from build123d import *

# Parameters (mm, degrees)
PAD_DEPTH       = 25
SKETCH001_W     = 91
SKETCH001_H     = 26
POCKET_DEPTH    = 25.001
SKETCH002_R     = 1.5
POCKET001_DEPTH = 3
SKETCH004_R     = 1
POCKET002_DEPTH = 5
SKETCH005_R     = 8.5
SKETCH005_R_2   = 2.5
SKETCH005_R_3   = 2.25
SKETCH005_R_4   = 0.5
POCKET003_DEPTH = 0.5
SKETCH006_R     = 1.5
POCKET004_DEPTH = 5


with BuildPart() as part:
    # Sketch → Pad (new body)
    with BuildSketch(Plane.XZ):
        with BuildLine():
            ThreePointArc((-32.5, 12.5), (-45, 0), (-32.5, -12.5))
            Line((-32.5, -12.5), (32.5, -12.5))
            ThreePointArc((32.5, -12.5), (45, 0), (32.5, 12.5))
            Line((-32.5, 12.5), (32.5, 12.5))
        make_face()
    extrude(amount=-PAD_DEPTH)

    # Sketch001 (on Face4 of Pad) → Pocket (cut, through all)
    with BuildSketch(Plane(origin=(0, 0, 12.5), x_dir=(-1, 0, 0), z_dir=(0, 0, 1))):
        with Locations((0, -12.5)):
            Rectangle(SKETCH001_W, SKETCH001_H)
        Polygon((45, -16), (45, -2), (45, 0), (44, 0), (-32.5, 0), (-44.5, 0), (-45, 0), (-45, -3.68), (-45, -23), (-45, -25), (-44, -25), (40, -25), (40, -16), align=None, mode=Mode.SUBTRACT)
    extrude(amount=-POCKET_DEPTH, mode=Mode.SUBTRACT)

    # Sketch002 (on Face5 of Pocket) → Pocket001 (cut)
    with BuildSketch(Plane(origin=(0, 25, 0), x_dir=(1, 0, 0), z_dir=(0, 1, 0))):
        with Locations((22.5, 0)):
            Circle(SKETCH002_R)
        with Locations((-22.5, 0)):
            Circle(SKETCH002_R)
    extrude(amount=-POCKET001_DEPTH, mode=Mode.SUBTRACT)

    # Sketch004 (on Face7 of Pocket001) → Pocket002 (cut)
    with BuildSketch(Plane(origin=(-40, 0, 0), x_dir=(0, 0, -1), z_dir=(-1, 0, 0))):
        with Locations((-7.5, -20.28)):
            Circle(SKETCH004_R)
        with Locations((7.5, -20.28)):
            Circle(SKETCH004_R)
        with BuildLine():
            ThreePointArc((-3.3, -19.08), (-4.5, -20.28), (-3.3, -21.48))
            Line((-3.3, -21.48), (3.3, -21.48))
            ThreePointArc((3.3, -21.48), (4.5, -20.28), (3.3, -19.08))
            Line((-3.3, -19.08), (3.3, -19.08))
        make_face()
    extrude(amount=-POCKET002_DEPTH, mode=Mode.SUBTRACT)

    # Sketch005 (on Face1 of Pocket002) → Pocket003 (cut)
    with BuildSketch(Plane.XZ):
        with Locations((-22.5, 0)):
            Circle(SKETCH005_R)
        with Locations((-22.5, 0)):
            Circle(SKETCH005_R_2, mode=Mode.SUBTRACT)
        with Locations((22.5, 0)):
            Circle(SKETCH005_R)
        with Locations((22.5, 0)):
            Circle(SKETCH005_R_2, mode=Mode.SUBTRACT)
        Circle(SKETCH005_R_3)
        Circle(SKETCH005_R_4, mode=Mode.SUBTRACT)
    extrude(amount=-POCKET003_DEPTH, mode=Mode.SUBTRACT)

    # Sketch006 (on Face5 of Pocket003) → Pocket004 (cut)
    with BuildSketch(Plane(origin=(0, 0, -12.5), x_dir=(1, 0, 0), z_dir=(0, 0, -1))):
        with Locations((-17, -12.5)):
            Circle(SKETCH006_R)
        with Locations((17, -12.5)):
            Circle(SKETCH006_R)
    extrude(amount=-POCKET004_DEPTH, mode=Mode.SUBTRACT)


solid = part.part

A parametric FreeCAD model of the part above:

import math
import FreeCAD as App
import Part
import Sketcher
Q = App.Units.Quantity


def add_polygon(sketch, points):
    """Adds a closed chain of lines whose ends are joined by coincident constraints."""
    first, n = sketch.GeometryCount, len(points)
    for a, b in zip(points, points[1:] + points[:1]):
        sketch.addGeometry(Part.LineSegment(App.Vector(*a, 0), App.Vector(*b, 0)), False)
    for i in range(n):
        sketch.addConstraint(Sketcher.Constraint("Coincident", first + i, 2, first + (i + 1) % n, 1))

doc = App.newDocument("Part")
body = doc.addObject("PartDesign::Body", "Body")

# Sketch on XZ plane
sketch1 = body.newObject("Sketcher::SketchObject", "Sketch")
sketch1.AttachmentSupport = (doc.getObject("XZ_Plane"), [""])
sketch1.MapMode = "FlatFace"
sketch1.addGeometry([
    Part.ArcOfCircle(Part.Circle(App.Vector(-32, 0, 0), App.Vector(0, 0, 1), 12), math.radians(90), math.radians(270)),
    Part.LineSegment(App.Vector(-32, -12, 0), App.Vector(32, -12, 0)),
    Part.ArcOfCircle(Part.Circle(App.Vector(32, 0, 0), App.Vector(0, 0, 1), 12), math.radians(-90), math.radians(90)),
    Part.LineSegment(App.Vector(32, 12, 0), App.Vector(-32, 12, 0)),
], False)
sketch1.addConstraint([
    Sketcher.Constraint("Tangent", 0, 2, 1, 1),
    Sketcher.Constraint("Tangent", 1, 2, 2, 1),
    Sketcher.Constraint("Tangent", 2, 2, 3, 1),
    Sketcher.Constraint("Tangent", 3, 2, 0, 1),
    Sketcher.Constraint("Horizontal", 1),
    Sketcher.Constraint("Horizontal", 3),
    Sketcher.Constraint("Symmetric", 0, 3, 2, 3, -1, 1),
    Sketcher.Constraint("Radius", 0, Q("12.5 mm")),
    Sketcher.Constraint("DistanceX", 1, 1, 1, 2, Q("65 mm")),
])
pad1 = body.newObject("PartDesign::Pad", "Pad")
pad1.Profile = sketch1
pad1.Length = 25
pad1.Reversed = True

# Sketch on XY plane
sketch2 = body.newObject("Sketcher::SketchObject", "Sketch001")
sketch2.AttachmentSupport = (doc.getObject("XY_Plane"), [""])
sketch2.MapMode = "FlatFace"
sketch2.AttachmentOffset = App.Placement(App.Vector(0, 0, 12.5), App.Rotation())
add_polygon(sketch2, [(46, 0), (46, 26), (-46, 26), (-46, 0)])  # lines 0-3
add_polygon(sketch2, [(-45, 0), (-45, 16), (-40, 16), (-40, 25), (45, 25), (45, 0)])  # lines 4-9
sketch2.addConstraint([
    Sketcher.Constraint("Vertical", 0),
    Sketcher.Constraint("Horizontal", 1),
    Sketcher.Constraint("Vertical", 2),
    Sketcher.Constraint("Horizontal", 3),
    Sketcher.Constraint("Vertical", 4),
    Sketcher.Constraint("Horizontal", 5),
    Sketcher.Constraint("Vertical", 6),
    Sketcher.Constraint("Horizontal", 7),
    Sketcher.Constraint("Vertical", 8),
    Sketcher.Constraint("Horizontal", 9),
    Sketcher.Constraint("Symmetric", 8, 2, 9, 2, -1, 1),
    Sketcher.Constraint("DistanceX", 1, 2, 1, 1, Q("91 mm")),
    Sketcher.Constraint("DistanceX", 5, 1, 5, 2, Q("5 mm")),
    Sketcher.Constraint("DistanceX", 7, 1, 7, 2, Q("85 mm")),
    Sketcher.Constraint("DistanceY", 0, 1, 0, 2, Q("26 mm")),
    Sketcher.Constraint("DistanceY", 4, 1, 4, 2, Q("16 mm")),
    Sketcher.Constraint("DistanceY", 6, 1, 6, 2, Q("9 mm")),
    Sketcher.Constraint("DistanceX", -1, 1, 0, 2, Q("45.5 mm")),
    Sketcher.Constraint("DistanceY", -1, 1, 0, 2, Q("25.5 mm")),
])
pocket1 = body.newObject("PartDesign::Pocket", "Pocket")
pocket1.Profile = sketch2
pocket1.Type = "ThroughAll"

# Sketch on XZ plane
sketch3 = body.newObject("Sketcher::SketchObject", "Sketch002")
sketch3.AttachmentSupport = (doc.getObject("XZ_Plane"), [""])
sketch3.MapMode = "FlatFace"
sketch3.AttachmentOffset = App.Placement(App.Vector(0, 0, -25), App.Rotation())
sketch3.addGeometry([
    Part.Circle(App.Vector(22.5, 0, 0), App.Vector(0, 0, 1), 1.5),
    Part.Circle(App.Vector(-22.5, 0, 0), App.Vector(0, 0, 1), 1.5),
], False)
sketch3.addConstraint([
    Sketcher.Constraint("Equal", 0, 1),
    Sketcher.Constraint("Symmetric", 0, 3, 1, 3, -1, 1),
    Sketcher.Constraint("PointOnObject", 0, 3, -1),
    Sketcher.Constraint("Diameter", 0, Q("3 mm")),
    Sketcher.Constraint("DistanceX", 1, 3, 0, 3, Q("45 mm")),
])
pocket2 = body.newObject("PartDesign::Pocket", "Pocket001")
pocket2.Profile = sketch3
pocket2.Length = 3
pocket2.Reversed = True

# Sketch on YZ plane
sketch4 = body.newObject("Sketcher::SketchObject", "Sketch003")
sketch4.AttachmentSupport = (doc.getObject("YZ_Plane"), [""])
sketch4.MapMode = "FlatFace"
sketch4.AttachmentOffset = App.Placement(App.Vector(0, 0, -40), App.Rotation())
sketch4.addGeometry([
    Part.Circle(App.Vector(20.3, 7.5, 0), App.Vector(0, 0, 1), 1),  # 0
    Part.Circle(App.Vector(20.3, -7.5, 0), App.Vector(0, 0, 1), 1),  # 1
    Part.ArcOfCircle(Part.Circle(App.Vector(20.3, 3.3, 0), App.Vector(0, 0, 1), 1.2), math.radians(0), math.radians(180)),  # 2
    Part.LineSegment(App.Vector(21.5, 3.3, 0), App.Vector(21.5, -3.3, 0)),  # 3
    Part.ArcOfCircle(Part.Circle(App.Vector(20.3, -3.3, 0), App.Vector(0, 0, 1), 1.2), math.radians(180), math.radians(360)),  # 4
    Part.LineSegment(App.Vector(19.1, -3.3, 0), App.Vector(19.1, 3.3, 0)),  # 5
], False)
sketch4.addConstraint([
    Sketcher.Constraint("Tangent", 2, 1, 3, 1),
    Sketcher.Constraint("Tangent", 3, 2, 4, 2),
    Sketcher.Constraint("Tangent", 4, 1, 5, 1),
    Sketcher.Constraint("Tangent", 5, 2, 2, 2),
    Sketcher.Constraint("Vertical", 3),
    Sketcher.Constraint("Vertical", 5),
    Sketcher.Constraint("Equal", 0, 1),
    Sketcher.Constraint("Symmetric", 0, 3, 1, 3, -1),
    Sketcher.Constraint("Vertical", 1, 3, 2, 3),
    Sketcher.Constraint("Diameter", 0, Q("2 mm")),
    Sketcher.Constraint("Radius", 2, Q("1.2 mm")),
    Sketcher.Constraint("DistanceY", 3, 2, 3, 1, Q("6.6 mm")),
    Sketcher.Constraint("DistanceY", 1, 3, 0, 3, Q("15 mm")),
    Sketcher.Constraint("DistanceY", -1, 1, 2, 3, Q("3.3 mm")),
    Sketcher.Constraint("DistanceX", -1, 1, 0, 3, Q("20.28 mm")),
])
pocket3 = body.newObject("PartDesign::Pocket", "Pocket002")
pocket3.Profile = sketch4
pocket3.Length = 5
pocket3.Reversed = True

# Sketch on XZ plane
sketch5 = body.newObject("Sketcher::SketchObject", "Sketch004")
sketch5.AttachmentSupport = (doc.getObject("XZ_Plane"), [""])
sketch5.MapMode = "FlatFace"
sketch5.addGeometry([
    Part.Circle(App.Vector(-22.5, 0, 0), App.Vector(0, 0, 1), 8.5),  # 0
    Part.Circle(App.Vector(-22.5, 0, 0), App.Vector(0, 0, 1), 2.5),  # 1
    Part.Circle(App.Vector(22.5, 0, 0), App.Vector(0, 0, 1), 8.5),  # 2
    Part.Circle(App.Vector(22.5, 0, 0), App.Vector(0, 0, 1), 2.5),  # 3
    Part.Circle(App.Vector(0, 0, 0), App.Vector(0, 0, 1), 2.2),  # 4
    Part.Circle(App.Vector(0, 0, 0), App.Vector(0, 0, 1), 0.5),  # 5
], False)
sketch5.addConstraint([
    Sketcher.Constraint("Coincident", 4, 3, -1, 1),
    Sketcher.Constraint("Coincident", 5, 3, -1, 1),
    Sketcher.Constraint("Coincident", 1, 3, 0, 3),
    Sketcher.Constraint("Coincident", 3, 3, 2, 3),
    Sketcher.Constraint("Equal", 0, 2),
    Sketcher.Constraint("Equal", 1, 3),
    Sketcher.Constraint("Symmetric", 0, 3, 2, 3, -1, 1),
    Sketcher.Constraint("PointOnObject", 0, 3, -1),
    Sketcher.Constraint("Diameter", 0, Q("17 mm")),
    Sketcher.Constraint("Diameter", 1, Q("5 mm")),
    Sketcher.Constraint("Diameter", 5, Q("1 mm")),
    Sketcher.Constraint("Diameter", 4, Q("4.5 mm")),
    Sketcher.Constraint("DistanceX", 0, 3, 2, 3, Q("45 mm")),
])
pocket4 = body.newObject("PartDesign::Pocket", "Pocket003")
pocket4.Profile = sketch5
pocket4.Length = 0.5

# Sketch on XY plane
sketch6 = body.newObject("Sketcher::SketchObject", "Sketch005")
sketch6.AttachmentSupport = (doc.getObject("XY_Plane"), [""])
sketch6.MapMode = "FlatFace"
sketch6.AttachmentOffset = App.Placement(App.Vector(0, 0, -12.5), App.Rotation())
sketch6.addGeometry([
    Part.Circle(App.Vector(-17, 12.5, 0), App.Vector(0, 0, 1), 1.5),
    Part.Circle(App.Vector(17, 12.5, 0), App.Vector(0, 0, 1), 1.5),
], False)
sketch6.addConstraint([
    Sketcher.Constraint("Equal", 0, 1),
    Sketcher.Constraint("Symmetric", 0, 3, 1, 3, -2),
    Sketcher.Constraint("Diameter", 0, Q("3 mm")),
    Sketcher.Constraint("DistanceX", 0, 3, -1, 1, Q("17 mm")),
    Sketcher.Constraint("DistanceY", -1, 1, 0, 3, Q("12.5 mm")),
])
pocket5 = body.newObject("PartDesign::Pocket", "Pocket004")
pocket5.Profile = sketch6
pocket5.Length = 5
pocket5.Reversed = True

doc.recompute()
